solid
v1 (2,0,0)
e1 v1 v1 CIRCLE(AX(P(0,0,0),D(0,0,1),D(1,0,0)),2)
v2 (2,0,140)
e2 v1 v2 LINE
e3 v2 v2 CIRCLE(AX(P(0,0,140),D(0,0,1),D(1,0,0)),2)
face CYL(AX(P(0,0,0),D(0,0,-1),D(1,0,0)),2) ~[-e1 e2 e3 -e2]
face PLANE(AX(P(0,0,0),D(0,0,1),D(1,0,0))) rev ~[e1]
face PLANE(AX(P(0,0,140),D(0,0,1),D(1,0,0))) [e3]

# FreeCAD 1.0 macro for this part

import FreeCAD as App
import Part
import Sketcher
from FreeCAD import Vector
Q = App.Units.Quantity

doc = App.newDocument("Part")
body = doc.addObject("PartDesign::Body", "Body")

# Sketch on XY plane
sketch1 = doc.addObject("Sketcher::SketchObject", "Sketch")
body.addObject(sketch1)
sketch1.AttachmentSupport = (doc.XY_Plane, [""])
sketch1.MapMode = "FlatFace"
sketch1.addGeometry(Part.Circle(Vector(0, 0, 0), Vector(0, 0, 1), 2), False)
sketch1.addConstraint([
    Sketcher.Constraint("Coincident", 0, 3, -1, 1),
    Sketcher.Constraint("Diameter", 0, Q("4 mm")),
])
pad1 = doc.addObject("PartDesign::Pad", "Pad")
body.addObject(pad1)
pad1.Profile = sketch1
pad1.Length = 140

doc.recompute()
